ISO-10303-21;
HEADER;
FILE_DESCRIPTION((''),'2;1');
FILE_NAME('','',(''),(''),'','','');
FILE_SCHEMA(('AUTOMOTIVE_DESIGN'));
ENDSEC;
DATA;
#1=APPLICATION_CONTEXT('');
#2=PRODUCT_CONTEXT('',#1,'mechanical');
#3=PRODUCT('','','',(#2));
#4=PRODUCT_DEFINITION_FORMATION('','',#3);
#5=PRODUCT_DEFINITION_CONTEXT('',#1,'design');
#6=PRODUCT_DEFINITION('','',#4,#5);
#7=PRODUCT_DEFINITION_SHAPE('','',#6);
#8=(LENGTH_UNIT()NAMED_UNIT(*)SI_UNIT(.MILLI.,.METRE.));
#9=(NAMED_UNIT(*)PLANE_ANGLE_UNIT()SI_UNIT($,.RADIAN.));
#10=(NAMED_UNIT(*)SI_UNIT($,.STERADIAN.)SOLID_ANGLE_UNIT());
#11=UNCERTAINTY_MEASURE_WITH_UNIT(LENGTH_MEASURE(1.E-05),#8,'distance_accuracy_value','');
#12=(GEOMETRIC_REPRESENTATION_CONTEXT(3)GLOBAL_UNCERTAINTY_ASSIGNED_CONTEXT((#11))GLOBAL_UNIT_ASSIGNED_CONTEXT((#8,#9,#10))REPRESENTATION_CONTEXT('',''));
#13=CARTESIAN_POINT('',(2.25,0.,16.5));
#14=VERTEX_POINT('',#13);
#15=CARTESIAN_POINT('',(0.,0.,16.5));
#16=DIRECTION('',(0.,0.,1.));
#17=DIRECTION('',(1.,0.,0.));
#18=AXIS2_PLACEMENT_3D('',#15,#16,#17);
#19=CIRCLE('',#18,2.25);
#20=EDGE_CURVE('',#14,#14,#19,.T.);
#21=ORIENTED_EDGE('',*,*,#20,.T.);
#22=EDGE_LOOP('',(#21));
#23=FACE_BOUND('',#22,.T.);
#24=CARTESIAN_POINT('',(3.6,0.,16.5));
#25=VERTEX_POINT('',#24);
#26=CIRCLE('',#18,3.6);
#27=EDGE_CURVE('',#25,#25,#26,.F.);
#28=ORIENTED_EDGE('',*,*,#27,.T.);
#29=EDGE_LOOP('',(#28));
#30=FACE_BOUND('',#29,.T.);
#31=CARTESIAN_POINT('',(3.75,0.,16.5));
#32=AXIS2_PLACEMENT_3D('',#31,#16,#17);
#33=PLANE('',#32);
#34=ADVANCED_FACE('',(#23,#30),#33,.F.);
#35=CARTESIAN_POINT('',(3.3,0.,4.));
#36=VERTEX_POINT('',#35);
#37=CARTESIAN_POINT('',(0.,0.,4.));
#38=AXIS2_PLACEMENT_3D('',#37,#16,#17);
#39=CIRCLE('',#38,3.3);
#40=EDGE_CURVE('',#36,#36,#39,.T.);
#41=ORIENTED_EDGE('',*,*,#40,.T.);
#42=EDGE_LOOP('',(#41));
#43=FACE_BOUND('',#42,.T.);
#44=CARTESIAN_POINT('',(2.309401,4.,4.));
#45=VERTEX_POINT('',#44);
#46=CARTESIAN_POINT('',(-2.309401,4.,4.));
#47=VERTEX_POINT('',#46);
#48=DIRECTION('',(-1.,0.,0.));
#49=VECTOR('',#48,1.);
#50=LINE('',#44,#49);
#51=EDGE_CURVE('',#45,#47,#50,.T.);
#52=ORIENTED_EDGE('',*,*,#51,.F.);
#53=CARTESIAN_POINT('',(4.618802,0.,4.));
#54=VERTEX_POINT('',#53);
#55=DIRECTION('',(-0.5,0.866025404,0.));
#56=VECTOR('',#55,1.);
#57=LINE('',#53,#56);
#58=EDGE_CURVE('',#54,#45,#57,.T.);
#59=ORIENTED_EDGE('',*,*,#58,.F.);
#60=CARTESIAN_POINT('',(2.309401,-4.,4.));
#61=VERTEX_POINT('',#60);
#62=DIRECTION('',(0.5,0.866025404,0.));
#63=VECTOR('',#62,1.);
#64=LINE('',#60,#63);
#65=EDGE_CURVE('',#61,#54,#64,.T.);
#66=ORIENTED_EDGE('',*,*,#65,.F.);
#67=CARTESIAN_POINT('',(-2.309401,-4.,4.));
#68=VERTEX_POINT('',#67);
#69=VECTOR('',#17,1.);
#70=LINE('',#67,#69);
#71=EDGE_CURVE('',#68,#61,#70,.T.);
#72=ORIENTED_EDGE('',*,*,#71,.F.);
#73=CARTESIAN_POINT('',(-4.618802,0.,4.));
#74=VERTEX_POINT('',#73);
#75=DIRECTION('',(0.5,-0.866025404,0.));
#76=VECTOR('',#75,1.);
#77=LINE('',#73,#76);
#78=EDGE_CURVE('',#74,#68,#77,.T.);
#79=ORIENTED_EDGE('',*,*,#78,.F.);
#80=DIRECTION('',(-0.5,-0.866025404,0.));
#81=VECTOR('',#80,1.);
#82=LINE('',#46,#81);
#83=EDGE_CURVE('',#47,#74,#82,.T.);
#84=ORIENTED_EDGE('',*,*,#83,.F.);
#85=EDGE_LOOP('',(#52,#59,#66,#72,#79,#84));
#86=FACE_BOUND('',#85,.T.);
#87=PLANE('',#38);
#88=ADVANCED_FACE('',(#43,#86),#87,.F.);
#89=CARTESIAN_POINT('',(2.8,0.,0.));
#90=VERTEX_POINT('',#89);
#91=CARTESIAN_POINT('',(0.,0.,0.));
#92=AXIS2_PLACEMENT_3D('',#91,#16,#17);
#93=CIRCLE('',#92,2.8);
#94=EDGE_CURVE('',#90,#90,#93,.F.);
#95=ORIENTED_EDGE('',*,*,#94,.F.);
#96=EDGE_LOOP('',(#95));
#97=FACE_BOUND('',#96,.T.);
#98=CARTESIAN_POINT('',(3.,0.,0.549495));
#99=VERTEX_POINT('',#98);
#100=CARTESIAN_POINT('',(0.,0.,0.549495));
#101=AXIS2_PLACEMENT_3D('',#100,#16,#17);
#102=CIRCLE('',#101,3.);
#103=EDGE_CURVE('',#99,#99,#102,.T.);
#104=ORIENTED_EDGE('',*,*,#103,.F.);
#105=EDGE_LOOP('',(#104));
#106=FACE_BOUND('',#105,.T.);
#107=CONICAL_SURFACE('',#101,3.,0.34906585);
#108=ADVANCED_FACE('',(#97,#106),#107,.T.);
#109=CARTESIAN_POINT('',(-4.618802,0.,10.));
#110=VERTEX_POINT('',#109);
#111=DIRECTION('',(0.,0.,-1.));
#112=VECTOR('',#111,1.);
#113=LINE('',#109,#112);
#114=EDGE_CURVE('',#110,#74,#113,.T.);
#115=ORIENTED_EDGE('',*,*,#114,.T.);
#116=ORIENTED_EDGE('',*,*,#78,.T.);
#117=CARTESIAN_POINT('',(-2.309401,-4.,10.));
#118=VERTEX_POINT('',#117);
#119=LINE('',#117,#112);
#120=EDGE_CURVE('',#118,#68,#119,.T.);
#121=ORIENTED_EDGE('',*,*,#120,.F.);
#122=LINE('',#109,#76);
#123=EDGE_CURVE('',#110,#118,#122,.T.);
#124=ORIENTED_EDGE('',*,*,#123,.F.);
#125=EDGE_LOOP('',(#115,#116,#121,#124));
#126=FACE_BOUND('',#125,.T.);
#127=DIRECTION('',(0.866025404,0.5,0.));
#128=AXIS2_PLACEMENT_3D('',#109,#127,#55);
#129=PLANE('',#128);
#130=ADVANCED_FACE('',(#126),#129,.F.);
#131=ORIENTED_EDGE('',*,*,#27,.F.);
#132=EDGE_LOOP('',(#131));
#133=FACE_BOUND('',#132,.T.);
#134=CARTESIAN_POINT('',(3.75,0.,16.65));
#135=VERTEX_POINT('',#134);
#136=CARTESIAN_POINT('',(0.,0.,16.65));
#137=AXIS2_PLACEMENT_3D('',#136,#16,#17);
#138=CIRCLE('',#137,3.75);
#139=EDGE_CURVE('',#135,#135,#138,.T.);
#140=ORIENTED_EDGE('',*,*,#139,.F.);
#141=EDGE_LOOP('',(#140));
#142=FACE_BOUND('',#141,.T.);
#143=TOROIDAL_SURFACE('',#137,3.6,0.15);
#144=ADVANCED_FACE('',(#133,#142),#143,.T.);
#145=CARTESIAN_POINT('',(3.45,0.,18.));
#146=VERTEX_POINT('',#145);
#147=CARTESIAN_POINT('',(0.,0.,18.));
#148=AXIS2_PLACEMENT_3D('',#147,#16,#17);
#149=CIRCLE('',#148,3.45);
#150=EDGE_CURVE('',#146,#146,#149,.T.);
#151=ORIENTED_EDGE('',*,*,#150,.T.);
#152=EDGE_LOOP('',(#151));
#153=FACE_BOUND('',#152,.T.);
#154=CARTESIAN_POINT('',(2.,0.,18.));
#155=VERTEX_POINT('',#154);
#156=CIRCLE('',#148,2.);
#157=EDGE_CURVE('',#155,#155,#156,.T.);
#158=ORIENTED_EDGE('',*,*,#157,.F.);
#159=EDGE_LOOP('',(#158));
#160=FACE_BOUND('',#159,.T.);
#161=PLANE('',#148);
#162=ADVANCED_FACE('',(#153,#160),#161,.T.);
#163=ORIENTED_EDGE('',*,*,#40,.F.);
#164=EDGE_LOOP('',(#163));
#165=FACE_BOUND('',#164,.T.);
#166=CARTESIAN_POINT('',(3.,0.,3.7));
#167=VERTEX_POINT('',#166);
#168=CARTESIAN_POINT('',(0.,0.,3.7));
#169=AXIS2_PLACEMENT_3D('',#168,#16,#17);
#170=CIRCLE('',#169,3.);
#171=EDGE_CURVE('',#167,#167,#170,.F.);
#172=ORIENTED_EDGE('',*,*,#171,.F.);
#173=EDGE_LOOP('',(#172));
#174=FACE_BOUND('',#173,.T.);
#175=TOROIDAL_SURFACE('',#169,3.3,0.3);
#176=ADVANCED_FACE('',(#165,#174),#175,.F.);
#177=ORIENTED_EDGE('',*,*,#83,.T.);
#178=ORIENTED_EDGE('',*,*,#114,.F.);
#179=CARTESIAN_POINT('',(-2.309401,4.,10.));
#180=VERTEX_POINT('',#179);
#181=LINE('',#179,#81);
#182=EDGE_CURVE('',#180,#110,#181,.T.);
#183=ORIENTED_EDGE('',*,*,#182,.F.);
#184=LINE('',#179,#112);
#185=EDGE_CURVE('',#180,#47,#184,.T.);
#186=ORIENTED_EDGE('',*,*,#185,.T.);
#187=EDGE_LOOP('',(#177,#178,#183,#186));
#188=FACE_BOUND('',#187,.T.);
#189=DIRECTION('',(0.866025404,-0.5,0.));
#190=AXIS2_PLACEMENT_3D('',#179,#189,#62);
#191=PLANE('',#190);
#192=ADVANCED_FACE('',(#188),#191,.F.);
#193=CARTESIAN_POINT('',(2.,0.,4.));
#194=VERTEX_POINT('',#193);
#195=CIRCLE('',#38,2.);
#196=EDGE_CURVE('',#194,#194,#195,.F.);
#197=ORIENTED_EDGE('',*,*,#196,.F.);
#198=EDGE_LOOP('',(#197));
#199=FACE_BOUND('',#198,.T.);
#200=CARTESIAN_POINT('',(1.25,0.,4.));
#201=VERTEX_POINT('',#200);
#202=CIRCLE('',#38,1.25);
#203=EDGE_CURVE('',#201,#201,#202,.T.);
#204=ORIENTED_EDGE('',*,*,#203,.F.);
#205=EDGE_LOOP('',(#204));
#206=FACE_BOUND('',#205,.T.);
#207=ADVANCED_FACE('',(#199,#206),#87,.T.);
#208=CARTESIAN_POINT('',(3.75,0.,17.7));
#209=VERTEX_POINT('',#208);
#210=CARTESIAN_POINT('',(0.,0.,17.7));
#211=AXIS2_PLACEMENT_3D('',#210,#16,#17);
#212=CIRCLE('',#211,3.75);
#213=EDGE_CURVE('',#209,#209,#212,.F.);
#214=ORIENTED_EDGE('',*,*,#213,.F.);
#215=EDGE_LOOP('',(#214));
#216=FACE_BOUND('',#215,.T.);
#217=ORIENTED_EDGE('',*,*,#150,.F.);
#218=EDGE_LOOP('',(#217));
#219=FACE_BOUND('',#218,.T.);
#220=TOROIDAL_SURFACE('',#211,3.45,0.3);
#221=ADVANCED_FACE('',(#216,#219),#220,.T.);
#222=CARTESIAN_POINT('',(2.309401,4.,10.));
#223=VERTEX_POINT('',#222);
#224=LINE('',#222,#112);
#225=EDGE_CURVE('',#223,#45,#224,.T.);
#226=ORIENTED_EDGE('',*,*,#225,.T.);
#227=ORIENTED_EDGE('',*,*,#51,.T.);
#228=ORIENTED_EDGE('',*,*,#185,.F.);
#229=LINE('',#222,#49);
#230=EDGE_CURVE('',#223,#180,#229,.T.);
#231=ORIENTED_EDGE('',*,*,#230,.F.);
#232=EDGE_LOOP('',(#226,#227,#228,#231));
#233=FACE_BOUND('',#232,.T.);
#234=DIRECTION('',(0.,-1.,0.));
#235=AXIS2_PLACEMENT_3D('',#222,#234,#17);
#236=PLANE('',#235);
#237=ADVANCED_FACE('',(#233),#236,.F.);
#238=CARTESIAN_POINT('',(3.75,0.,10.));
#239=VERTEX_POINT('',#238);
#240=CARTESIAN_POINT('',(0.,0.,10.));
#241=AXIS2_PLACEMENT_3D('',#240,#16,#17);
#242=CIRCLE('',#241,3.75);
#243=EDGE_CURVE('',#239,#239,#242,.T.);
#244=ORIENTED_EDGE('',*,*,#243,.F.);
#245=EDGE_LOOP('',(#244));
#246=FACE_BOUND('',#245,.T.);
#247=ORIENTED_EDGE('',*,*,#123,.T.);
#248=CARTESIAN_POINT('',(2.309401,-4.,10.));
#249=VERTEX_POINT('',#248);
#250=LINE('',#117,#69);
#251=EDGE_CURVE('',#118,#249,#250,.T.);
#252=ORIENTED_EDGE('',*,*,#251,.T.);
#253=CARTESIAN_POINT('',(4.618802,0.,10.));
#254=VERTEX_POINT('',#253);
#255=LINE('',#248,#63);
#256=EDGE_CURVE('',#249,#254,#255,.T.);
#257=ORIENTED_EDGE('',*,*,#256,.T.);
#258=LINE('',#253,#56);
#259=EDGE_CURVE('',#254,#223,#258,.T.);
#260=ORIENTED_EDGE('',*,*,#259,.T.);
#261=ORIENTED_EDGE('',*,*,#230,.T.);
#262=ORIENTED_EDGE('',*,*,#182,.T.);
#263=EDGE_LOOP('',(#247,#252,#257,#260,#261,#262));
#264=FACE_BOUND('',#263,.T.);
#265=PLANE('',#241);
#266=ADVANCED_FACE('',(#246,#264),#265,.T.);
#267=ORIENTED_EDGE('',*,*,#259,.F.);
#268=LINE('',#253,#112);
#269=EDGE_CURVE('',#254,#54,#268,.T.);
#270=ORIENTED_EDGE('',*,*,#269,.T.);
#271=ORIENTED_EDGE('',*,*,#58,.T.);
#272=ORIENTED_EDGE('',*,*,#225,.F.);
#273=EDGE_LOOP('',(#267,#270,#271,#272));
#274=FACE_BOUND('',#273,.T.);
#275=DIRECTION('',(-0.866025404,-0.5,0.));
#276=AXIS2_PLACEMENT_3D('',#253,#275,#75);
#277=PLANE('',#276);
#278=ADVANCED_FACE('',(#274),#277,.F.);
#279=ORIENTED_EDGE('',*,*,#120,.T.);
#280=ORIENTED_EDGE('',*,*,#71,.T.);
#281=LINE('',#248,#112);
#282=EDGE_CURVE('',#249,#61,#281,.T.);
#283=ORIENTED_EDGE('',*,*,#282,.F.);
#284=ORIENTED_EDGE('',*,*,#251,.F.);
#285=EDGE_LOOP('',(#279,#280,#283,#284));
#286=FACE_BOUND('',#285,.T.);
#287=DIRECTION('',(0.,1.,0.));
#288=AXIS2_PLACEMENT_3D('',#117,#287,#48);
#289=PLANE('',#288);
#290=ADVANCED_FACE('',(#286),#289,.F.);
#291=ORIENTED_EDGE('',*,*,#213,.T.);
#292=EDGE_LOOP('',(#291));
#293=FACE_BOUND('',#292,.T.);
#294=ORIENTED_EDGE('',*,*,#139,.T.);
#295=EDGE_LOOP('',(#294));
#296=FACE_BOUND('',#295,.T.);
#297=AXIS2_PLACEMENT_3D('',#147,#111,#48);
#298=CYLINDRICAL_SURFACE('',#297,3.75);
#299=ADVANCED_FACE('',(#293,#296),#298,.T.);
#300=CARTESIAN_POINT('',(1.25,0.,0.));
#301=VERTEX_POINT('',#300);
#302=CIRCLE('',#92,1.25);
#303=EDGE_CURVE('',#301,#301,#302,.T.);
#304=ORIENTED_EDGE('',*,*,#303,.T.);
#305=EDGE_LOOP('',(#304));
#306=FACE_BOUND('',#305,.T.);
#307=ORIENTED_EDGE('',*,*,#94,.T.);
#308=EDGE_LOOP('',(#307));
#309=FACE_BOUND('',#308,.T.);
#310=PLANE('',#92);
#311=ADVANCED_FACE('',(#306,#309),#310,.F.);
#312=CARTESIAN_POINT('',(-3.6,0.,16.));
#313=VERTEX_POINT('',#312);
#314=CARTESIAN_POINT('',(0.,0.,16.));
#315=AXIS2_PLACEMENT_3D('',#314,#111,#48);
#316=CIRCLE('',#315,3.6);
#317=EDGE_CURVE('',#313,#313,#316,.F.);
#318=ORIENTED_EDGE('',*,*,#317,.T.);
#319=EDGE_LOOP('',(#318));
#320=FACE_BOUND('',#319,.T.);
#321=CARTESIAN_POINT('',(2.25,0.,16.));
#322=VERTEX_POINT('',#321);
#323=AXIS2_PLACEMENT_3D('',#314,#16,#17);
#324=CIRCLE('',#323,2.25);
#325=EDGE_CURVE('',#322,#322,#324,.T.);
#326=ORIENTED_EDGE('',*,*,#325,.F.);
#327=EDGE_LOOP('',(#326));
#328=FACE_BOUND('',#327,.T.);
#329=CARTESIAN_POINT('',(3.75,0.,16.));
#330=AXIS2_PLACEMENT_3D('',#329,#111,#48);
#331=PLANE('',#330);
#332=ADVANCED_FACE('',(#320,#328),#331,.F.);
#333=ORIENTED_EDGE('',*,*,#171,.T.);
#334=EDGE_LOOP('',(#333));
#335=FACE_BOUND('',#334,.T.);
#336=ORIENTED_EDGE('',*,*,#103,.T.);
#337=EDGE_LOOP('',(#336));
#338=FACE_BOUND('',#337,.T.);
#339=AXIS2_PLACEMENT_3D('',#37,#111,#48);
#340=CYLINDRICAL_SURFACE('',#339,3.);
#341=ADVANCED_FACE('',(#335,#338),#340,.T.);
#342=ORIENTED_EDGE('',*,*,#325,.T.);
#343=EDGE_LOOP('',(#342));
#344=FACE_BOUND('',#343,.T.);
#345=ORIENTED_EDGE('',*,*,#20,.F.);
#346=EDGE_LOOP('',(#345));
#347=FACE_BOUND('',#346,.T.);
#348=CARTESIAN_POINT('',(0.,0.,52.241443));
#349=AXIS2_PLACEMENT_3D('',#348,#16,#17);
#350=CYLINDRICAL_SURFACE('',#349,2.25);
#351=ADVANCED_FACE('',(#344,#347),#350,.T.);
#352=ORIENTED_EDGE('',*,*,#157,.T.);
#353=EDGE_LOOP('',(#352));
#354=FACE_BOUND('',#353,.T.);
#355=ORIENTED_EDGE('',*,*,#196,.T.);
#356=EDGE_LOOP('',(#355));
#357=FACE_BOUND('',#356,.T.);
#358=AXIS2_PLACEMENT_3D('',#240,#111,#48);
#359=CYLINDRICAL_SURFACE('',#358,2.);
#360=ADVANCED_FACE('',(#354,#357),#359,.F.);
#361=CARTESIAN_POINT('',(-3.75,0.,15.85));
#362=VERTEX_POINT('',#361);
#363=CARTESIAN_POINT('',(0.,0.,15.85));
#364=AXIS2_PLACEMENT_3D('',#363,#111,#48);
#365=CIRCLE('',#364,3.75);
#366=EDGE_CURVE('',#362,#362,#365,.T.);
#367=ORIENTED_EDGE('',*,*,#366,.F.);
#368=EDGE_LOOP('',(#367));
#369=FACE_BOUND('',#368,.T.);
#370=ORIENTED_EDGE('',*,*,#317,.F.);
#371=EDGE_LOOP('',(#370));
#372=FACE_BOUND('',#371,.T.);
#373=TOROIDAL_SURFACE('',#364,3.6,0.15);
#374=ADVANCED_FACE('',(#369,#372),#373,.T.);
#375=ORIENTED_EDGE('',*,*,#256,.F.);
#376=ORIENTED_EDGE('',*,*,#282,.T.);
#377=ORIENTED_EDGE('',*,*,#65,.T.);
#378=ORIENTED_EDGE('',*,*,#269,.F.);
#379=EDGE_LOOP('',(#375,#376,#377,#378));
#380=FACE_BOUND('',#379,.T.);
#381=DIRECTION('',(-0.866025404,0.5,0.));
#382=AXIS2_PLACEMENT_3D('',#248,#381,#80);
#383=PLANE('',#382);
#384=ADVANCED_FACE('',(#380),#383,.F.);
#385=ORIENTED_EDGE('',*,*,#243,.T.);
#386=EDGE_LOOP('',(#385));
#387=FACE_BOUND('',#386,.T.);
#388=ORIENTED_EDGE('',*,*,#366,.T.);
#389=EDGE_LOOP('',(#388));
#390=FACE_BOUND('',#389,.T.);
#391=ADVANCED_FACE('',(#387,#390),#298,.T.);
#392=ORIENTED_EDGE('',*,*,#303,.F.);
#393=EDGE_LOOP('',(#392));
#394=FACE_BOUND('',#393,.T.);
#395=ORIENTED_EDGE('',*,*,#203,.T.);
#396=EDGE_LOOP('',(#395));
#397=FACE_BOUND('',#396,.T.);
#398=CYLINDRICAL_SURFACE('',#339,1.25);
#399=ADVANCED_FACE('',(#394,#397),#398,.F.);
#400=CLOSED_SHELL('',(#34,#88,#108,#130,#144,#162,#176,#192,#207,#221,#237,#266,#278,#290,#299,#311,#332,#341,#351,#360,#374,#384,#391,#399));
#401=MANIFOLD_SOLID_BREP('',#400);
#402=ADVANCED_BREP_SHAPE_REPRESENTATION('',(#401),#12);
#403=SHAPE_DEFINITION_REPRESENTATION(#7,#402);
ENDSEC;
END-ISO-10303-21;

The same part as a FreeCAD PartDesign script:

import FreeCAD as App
import Part
import Sketcher

V = App.Vector
Q = App.Units.Quantity


def edges_at(feature, points):
    """Names of the edges that pass closest to the given points."""
    edges = feature.Shape.Edges
    near = lambda p: min(range(len(edges)), key=lambda i: edges[i].distToShape(Part.Vertex(*p))[0])
    return sorted({f"Edge{near(p) + 1}" for p in points})

doc = App.newDocument("Part")
body = doc.addObject("PartDesign::Body", "Body")

# Sketch on XY plane
sketch1 = body.newObject("Sketcher::SketchObject", "Sketch")
sketch1.AttachmentSupport = (doc.getObject("XY_Plane"), [""])
sketch1.MapMode = "FlatFace"
sketch1.addGeometry([
    Part.Circle(V(0, 0, 0), V(0, 0, 1), 3),
    Part.Circle(V(0, 0, 0), V(0, 0, 1), 1.2),
], False)
sketch1.addConstraint([
    Sketcher.Constraint("Coincident", 0, 3, -1, 1),
    Sketcher.Constraint("Coincident", 1, 3, -1, 1),
    Sketcher.Constraint("Diameter", 0, 6.0),
    Sketcher.Constraint("Diameter", 1, 2.5),
])
pad1 = body.newObject("PartDesign::Pad", "Pad")
pad1.Profile = sketch1
pad1.Length = 4
doc.recompute()

chamfer = body.newObject("PartDesign::Chamfer", "Chamfer")
chamfer.Base = (pad1, edges_at(pad1, [(-3, 0, 0)]))
chamfer.ChamferType = "Two distances"
chamfer.Size = 0.2
chamfer.Size2 = 0.549495
chamfer.FlipDirection = True

# Sketch on XY plane
sketch2 = body.newObject("Sketcher::SketchObject", "Sketch001")
sketch2.AttachmentSupport = (doc.getObject("XY_Plane"), [""])
sketch2.MapMode = "FlatFace"
sketch2.AttachmentOffset = App.Placement(V(0, 0, 4), App.Rotation())
sketch2.addGeometry([
    Part.LineSegment(V(2.3, -4, 0), V(4.6, 0, 0)),  # 0
    Part.LineSegment(V(4.6, 0, 0), V(2.3, 4, 0)),  # 1
    Part.LineSegment(V(2.3, 4, 0), V(-2.3, 4, 0)),  # 2
    Part.LineSegment(V(-2.3, 4, 0), V(-4.6, 0, 0)),  # 3
    Part.LineSegment(V(-4.6, 0, 0), V(-2.3, -4, 0)),  # 4
    Part.LineSegment(V(-2.3, -4, 0), V(2.3, -4, 0)),  # 5
    Part.Circle(V(0, 0, 0), V(0, 0, 1), 2),  # 6
], False)
sketch2.addConstraint([
    Sketcher.Constraint("Coincident", 0, 2, 1, 1),
    Sketcher.Constraint("Coincident", 1, 2, 2, 1),
    Sketcher.Constraint("Coincident", 2, 2, 3, 1),
    Sketcher.Constraint("Coincident", 3, 2, 4, 1),
    Sketcher.Constraint("Coincident", 4, 2, 5, 1),
    Sketcher.Constraint("Coincident", 5, 2, 0, 1),
    Sketcher.Constraint("Horizontal", 2),
    Sketcher.Constraint("Horizontal", 5),
    Sketcher.Constraint("Coincident", 6, 3, -1, 1),
    Sketcher.Constraint("Symmetric", 0, 2, 3, 2, -1, 1),
    Sketcher.Constraint("Symmetric", 1, 2, 4, 2, -1, 1),
    Sketcher.Constraint("PointOnObject", 0, 2, -1),
    Sketcher.Constraint("Parallel", 0, 3),
    Sketcher.Constraint("Vertical", 2, 2, 4, 2),
    Sketcher.Constraint("Diameter", 6, 4.0),
    Sketcher.Constraint("Angle", 0, Q("60 deg")),
    Sketcher.Constraint("DistanceY", -1, 1, 1, 2, 4.0),
    Sketcher.Constraint("DistanceX", -1, 1, 1, 2, 2.309401),
])
pad2 = body.newObject("PartDesign::Pad", "Pad001")
pad2.Profile = sketch2
pad2.Length = 6

# Sketch on XY plane
sketch3 = body.newObject("Sketcher::SketchObject", "Sketch002")
sketch3.AttachmentSupport = (doc.getObject("XY_Plane"), [""])
sketch3.MapMode = "FlatFace"
sketch3.AttachmentOffset = App.Placement(V(0, 0, 10), App.Rotation())
sketch3.addGeometry([
    Part.Circle(V(0, 0, 0), V(0, 0, 1), 3.8),
    Part.Circle(V(0, 0, 0), V(0, 0, 1), 2),
], False)
sketch3.addConstraint([
    Sketcher.Constraint("Coincident", 0, 3, -1, 1),
    Sketcher.Constraint("Coincident", 1, 3, -1, 1),
    Sketcher.Constraint("Diameter", 1, 4.0),
    Sketcher.Constraint("Diameter", 0, 7.5),
])
pad3 = body.newObject("PartDesign::Pad", "Pad002")
pad3.Profile = sketch3
pad3.Length = 8
doc.recompute()

fillet = body.newObject("PartDesign::Fillet", "Fillet")
fillet.Base = (pad3, edges_at(pad3, [(-3, 0, 4)]))
fillet.Radius = 0.3

# Sketch on XZ plane
sketch4 = body.newObject("Sketcher::SketchObject", "Sketch003")
sketch4.AttachmentSupport = (doc.getObject("XZ_Plane"), [""])
sketch4.MapMode = "FlatFace"
sketch4.addGeometry([
    Part.LineSegment(V(2.2, 16, 0), V(2.2, 16.5, 0)),
    Part.LineSegment(V(2.2, 16.5, 0), V(3.8, 16.5, 0)),
    Part.LineSegment(V(3.8, 16.5, 0), V(3.8, 16, 0)),
    Part.LineSegment(V(3.8, 16, 0), V(2.2, 16, 0)),
], False)
sketch4.addConstraint([
    Sketcher.Constraint("Coincident", 0, 2, 1, 1),
    Sketcher.Constraint("Coincident", 1, 2, 2, 1),
    Sketcher.Constraint("Coincident", 2, 2, 3, 1),
    Sketcher.Constraint("Coincident", 3, 2, 0, 1),
    Sketcher.Constraint("Vertical", 0),
    Sketcher.Constraint("Horizontal", 1),
    Sketcher.Constraint("Vertical", 2),
    Sketcher.Constraint("Horizontal", 3),
    Sketcher.Constraint("DistanceX", 1, 1, 1, 2, 1.5),
    Sketcher.Constraint("DistanceY", 0, 1, 0, 2, 0.5),
    Sketcher.Constraint("DistanceY", -1, 1, 2, 2, 16.0),
    Sketcher.Constraint("DistanceX", -1, 1, 0, 2, 2.25),
])
groove = body.newObject("PartDesign::Groove", "Groove")
groove.Profile = sketch4
groove.ReferenceAxis = (sketch4, ["V_Axis"])
groove.Angle = 360
doc.recompute()

fillet2 = body.newObject("PartDesign::Fillet", "Fillet001")
fillet2.Base = (groove, edges_at(groove, [(-3.75, 0, 18)]))
fillet2.Radius = 0.3
doc.recompute()

fillet3 = body.newObject("PartDesign::Fillet", "Fillet002")
fillet3.Base = (fillet2, edges_at(fillet2, [(-3.75, 0, 16), (-3.75, 0, 16.5)]))
fillet3.Radius = 0.15

doc.recompute()
